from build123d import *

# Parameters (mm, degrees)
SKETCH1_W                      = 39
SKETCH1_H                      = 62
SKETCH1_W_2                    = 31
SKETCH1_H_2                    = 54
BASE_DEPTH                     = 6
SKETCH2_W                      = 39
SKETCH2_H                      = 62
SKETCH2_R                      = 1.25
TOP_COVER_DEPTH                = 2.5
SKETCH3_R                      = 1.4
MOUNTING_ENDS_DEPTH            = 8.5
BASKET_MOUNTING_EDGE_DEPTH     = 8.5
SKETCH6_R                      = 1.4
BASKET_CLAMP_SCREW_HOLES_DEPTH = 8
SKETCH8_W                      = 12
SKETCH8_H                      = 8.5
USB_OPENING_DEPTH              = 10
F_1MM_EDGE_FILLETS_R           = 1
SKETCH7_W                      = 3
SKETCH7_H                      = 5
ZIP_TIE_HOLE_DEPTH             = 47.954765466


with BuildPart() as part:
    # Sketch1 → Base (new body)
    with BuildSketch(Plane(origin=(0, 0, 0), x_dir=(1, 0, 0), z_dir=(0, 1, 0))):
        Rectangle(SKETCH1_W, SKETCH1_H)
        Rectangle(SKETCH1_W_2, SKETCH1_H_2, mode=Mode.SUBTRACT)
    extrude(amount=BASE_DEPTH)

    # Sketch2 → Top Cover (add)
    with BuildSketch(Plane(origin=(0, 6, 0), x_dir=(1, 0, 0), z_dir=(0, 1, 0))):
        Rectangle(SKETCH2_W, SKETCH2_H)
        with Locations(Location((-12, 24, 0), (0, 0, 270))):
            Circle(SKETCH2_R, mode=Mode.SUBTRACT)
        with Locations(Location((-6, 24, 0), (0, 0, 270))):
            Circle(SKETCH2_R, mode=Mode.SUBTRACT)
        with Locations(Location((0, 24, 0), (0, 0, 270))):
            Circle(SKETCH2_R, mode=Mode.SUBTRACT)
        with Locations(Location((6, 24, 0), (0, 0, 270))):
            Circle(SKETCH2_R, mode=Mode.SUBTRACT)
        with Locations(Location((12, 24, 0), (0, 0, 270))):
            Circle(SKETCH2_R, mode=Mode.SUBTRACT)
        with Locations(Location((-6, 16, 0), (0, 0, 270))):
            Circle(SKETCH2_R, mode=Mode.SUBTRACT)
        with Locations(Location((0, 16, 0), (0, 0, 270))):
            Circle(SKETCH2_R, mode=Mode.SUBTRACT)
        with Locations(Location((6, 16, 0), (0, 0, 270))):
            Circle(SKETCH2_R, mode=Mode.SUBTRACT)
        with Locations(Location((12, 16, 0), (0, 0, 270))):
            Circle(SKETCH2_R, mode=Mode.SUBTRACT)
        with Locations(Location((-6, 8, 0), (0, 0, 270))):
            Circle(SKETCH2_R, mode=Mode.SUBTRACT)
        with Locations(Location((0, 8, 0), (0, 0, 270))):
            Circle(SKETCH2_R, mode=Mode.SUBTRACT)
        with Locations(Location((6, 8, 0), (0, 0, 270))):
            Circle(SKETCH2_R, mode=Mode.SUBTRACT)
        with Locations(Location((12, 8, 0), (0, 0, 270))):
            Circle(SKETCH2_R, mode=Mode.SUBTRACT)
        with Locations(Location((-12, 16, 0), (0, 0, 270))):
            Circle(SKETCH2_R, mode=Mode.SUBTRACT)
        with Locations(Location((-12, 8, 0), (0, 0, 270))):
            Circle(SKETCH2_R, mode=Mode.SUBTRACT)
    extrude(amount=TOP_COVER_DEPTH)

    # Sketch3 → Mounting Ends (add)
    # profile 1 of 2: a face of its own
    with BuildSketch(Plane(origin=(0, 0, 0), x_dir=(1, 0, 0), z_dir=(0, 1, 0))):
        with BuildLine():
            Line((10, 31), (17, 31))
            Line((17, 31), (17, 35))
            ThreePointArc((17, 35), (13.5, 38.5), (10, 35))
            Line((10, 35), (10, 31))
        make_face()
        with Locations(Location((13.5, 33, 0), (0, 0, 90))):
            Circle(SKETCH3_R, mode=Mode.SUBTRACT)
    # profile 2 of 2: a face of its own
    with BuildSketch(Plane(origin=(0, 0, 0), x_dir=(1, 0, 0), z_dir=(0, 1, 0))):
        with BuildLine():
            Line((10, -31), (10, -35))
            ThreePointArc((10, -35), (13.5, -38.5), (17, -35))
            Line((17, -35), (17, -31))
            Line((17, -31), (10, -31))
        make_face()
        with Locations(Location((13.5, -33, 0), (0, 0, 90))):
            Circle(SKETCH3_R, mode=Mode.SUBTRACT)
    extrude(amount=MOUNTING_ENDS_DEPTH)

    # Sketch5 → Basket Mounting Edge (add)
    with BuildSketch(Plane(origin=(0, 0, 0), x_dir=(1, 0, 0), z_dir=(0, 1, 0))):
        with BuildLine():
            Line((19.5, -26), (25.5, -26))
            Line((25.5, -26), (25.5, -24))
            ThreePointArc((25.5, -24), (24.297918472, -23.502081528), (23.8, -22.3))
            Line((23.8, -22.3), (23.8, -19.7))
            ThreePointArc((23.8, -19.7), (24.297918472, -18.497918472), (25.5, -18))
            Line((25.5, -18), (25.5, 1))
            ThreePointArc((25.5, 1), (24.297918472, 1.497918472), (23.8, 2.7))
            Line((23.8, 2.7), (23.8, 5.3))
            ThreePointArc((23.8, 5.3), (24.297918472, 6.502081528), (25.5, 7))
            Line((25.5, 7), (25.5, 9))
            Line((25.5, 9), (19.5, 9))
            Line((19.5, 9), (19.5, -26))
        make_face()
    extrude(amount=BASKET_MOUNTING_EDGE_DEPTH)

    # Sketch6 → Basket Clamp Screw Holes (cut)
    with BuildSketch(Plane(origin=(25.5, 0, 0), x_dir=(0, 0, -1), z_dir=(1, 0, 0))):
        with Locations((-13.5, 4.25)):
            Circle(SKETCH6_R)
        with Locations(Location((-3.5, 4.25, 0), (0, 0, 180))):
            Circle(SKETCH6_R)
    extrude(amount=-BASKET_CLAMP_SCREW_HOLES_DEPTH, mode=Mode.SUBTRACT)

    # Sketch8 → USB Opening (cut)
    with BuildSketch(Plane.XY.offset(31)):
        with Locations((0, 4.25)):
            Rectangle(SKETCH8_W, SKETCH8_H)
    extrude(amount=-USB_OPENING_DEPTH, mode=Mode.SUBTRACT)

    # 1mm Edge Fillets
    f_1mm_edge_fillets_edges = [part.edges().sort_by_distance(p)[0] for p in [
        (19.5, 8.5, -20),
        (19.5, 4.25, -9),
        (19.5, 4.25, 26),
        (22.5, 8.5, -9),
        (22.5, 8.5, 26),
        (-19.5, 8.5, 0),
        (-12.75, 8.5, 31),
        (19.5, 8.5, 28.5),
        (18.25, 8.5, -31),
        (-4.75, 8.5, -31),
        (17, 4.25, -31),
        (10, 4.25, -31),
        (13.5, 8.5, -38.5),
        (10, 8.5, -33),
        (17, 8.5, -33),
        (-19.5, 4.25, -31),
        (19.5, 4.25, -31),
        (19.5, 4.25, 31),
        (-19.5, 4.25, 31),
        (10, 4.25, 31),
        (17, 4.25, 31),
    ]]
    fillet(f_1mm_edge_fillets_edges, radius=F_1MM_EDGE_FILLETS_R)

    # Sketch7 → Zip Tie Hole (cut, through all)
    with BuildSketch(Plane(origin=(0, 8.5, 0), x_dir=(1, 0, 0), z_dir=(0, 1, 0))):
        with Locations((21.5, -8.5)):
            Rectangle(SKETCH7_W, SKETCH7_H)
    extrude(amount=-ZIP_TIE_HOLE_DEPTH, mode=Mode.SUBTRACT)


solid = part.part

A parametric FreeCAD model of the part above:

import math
import FreeCAD as App
import Part
import Sketcher

V = App.Vector
Q = App.Units.Quantity


def edges_at(feature, points):
    """Names of the edges that pass closest to the given points."""
    edges = feature.Shape.Edges
    near = lambda p: min(range(len(edges)), key=lambda i: edges[i].distToShape(Part.Vertex(*p))[0])
    return sorted({f"Edge{near(p) + 1}" for p in points})


def add_polygon(sketch, points):
    """Adds a closed chain of lines whose ends are joined by coincident constraints."""
    first, n = sketch.GeometryCount, len(points)
    for a, b in zip(points, points[1:] + points[:1]):
        sketch.addGeometry(Part.LineSegment(App.Vector(*a, 0), App.Vector(*b, 0)), False)
    for i in range(n):
        sketch.addConstraint(Sketcher.Constraint("Coincident", first + i, 2, first + (i + 1) % n, 1))

doc = App.newDocument("Part")
body = doc.addObject("PartDesign::Body", "Body")

# Sketch on XZ plane
sketch1 = doc.addObject("Sketcher::SketchObject", "Sketch")
body.addObject(sketch1)
sketch1.AttachmentSupport = (doc.XZ_Plane, [""])
sketch1.MapMode = "FlatFace"
add_polygon(sketch1, [(-19.5, -31), (-19.5, 31), (19.5, 31), (19.5, -31)])  # lines 0-3
add_polygon(sketch1, [(15.5, 27), (-15.5, 27), (-15.5, -27), (15.5, -27)])  # lines 4-7
sketch1.addConstraint(Sketcher.Constraint("Vertical", 0))
sketch1.addConstraint(Sketcher.Constraint("Horizontal", 1))
sketch1.addConstraint(Sketcher.Constraint("Vertical", 2))
sketch1.addConstraint(Sketcher.Constraint("Horizontal", 3))
sketch1.addConstraint(Sketcher.Constraint("Horizontal", 4))
sketch1.addConstraint(Sketcher.Constraint("Vertical", 5))
sketch1.addConstraint(Sketcher.Constraint("Horizontal", 6))
sketch1.addConstraint(Sketcher.Constraint("Vertical", 7))
sketch1.addConstraint(Sketcher.Constraint("Symmetric", 0, 2, 2, 2, -1, 1))
sketch1.addConstraint(Sketcher.Constraint("Symmetric", 4, 2, 6, 2, -1, 1))
sketch1.addConstraint(Sketcher.Constraint("DistanceX", 1, 1, 1, 2, Q("39 mm")))
sketch1.addConstraint(Sketcher.Constraint("DistanceX", 4, 2, 4, 1, Q("31 mm")))
sketch1.addConstraint(Sketcher.Constraint("DistanceY", 0, 1, 0, 2, Q("62 mm")))
sketch1.addConstraint(Sketcher.Constraint("DistanceY", 5, 2, 5, 1, Q("54 mm")))
pad1 = doc.addObject("PartDesign::Pad", "Pad")
body.addObject(pad1)
pad1.Profile = sketch1
pad1.Length = 6
pad1.Reversed = True

# Sketch on XZ plane
sketch2 = doc.addObject("Sketcher::SketchObject", "Sketch001")
body.addObject(sketch2)
sketch2.AttachmentSupport = (doc.XZ_Plane, [""])
sketch2.MapMode = "FlatFace"
sketch2.AttachmentOffset = App.Placement(V(0, 0, -6), App.Rotation())
add_polygon(sketch2, [(-19.5, -31), (-19.5, 31), (19.5, 31), (19.5, -31)])  # lines 0-3
sketch2.addGeometry(Part.Circle(V(-12, -8, 0), V(0, 0, 1), 1.25), False)  # 4
sketch2.addGeometry(Part.Circle(V(-6, -8, 0), V(0, 0, 1), 1.25), False)  # 5
sketch2.addGeometry(Part.Circle(V(0, -8, 0), V(0, 0, 1), 1.25), False)  # 6
sketch2.addGeometry(Part.Circle(V(6, -8, 0), V(0, 0, 1), 1.25), False)  # 7
sketch2.addGeometry(Part.Circle(V(12, -8, 0), V(0, 0, 1), 1.25), False)  # 8
sketch2.addGeometry(Part.Circle(V(-12, -16, 0), V(0, 0, 1), 1.25), False)  # 9
sketch2.addGeometry(Part.Circle(V(-6, -16, 0), V(0, 0, 1), 1.25), False)  # 10
sketch2.addGeometry(Part.Circle(V(-12, -24, 0), V(0, 0, 1), 1.25), False)  # 11
sketch2.addGeometry(Part.Circle(V(-6, -24, 0), V(0, 0, 1), 1.25), False)  # 12
sketch2.addGeometry(Part.Circle(V(0, -16, 0), V(0, 0, 1), 1.25), False)  # 13
sketch2.addGeometry(Part.Circle(V(6, -16, 0), V(0, 0, 1), 1.25), False)  # 14
sketch2.addGeometry(Part.Circle(V(12, -16, 0), V(0, 0, 1), 1.25), False)  # 15
sketch2.addGeometry(Part.Circle(V(0, -24, 0), V(0, 0, 1), 1.25), False)  # 16
sketch2.addGeometry(Part.Circle(V(6, -24, 0), V(0, 0, 1), 1.25), False)  # 17
sketch2.addGeometry(Part.Circle(V(12, -24, 0), V(0, 0, 1), 1.25), False)  # 18
sketch2.addConstraint(Sketcher.Constraint("Vertical", 0))
sketch2.addConstraint(Sketcher.Constraint("Horizontal", 1))
sketch2.addConstraint(Sketcher.Constraint("Vertical", 2))
sketch2.addConstraint(Sketcher.Constraint("Horizontal", 3))
sketch2.addConstraint(Sketcher.Constraint("Equal", 4, 5))
sketch2.addConstraint(Sketcher.Constraint("Equal", 5, 6))
sketch2.addConstraint(Sketcher.Constraint("Equal", 6, 7))
sketch2.addConstraint(Sketcher.Constraint("Equal", 7, 8))
sketch2.addConstraint(Sketcher.Constraint("Equal", 8, 9))
sketch2.addConstraint(Sketcher.Constraint("Equal", 9, 10))
sketch2.addConstraint(Sketcher.Constraint("Equal", 10, 11))
sketch2.addConstraint(Sketcher.Constraint("Equal", 11, 12))
sketch2.addConstraint(Sketcher.Constraint("Equal", 12, 13))
sketch2.addConstraint(Sketcher.Constraint("Equal", 13, 14))
sketch2.addConstraint(Sketcher.Constraint("Equal", 14, 15))
sketch2.addConstraint(Sketcher.Constraint("Equal", 15, 16))
sketch2.addConstraint(Sketcher.Constraint("Equal", 16, 17))
sketch2.addConstraint(Sketcher.Constraint("Equal", 17, 18))
sketch2.addConstraint(Sketcher.Constraint("Symmetric", 0, 2, 2, 2, -1, 1))
sketch2.addConstraint(Sketcher.Constraint("Symmetric", 5, 3, 7, 3, -2))
sketch2.addConstraint(Sketcher.Constraint("Symmetric", 4, 3, 8, 3, -2))
sketch2.addConstraint(Sketcher.Constraint("Symmetric", 10, 3, 14, 3, -2))
sketch2.addConstraint(Sketcher.Constraint("Symmetric", 9, 3, 15, 3, -2))
sketch2.addConstraint(Sketcher.Constraint("Symmetric", 12, 3, 17, 3, -2))
sketch2.addConstraint(Sketcher.Constraint("Symmetric", 11, 3, 18, 3, -2))
sketch2.addConstraint(Sketcher.Constraint("PointOnObject", 6, 3, -2))
sketch2.addConstraint(Sketcher.Constraint("PointOnObject", 13, 3, -2))
sketch2.addConstraint(Sketcher.Constraint("PointOnObject", 16, 3, -2))
sketch2.addConstraint(Sketcher.Constraint("Horizontal", 4, 3, 5, 3))
sketch2.addConstraint(Sketcher.Constraint("Horizontal", 5, 3, 6, 3))
sketch2.addConstraint(Sketcher.Constraint("Horizontal", 9, 3, 10, 3))
sketch2.addConstraint(Sketcher.Constraint("Horizontal", 11, 3, 12, 3))
sketch2.addConstraint(Sketcher.Constraint("Horizontal", 10, 3, 13, 3))
sketch2.addConstraint(Sketcher.Constraint("Horizontal", 12, 3, 16, 3))
sketch2.addConstraint(Sketcher.Constraint("Vertical", 4, 3, 9, 3))
sketch2.addConstraint(Sketcher.Constraint("Vertical", 5, 3, 10, 3))
sketch2.addConstraint(Sketcher.Constraint("Vertical", 9, 3, 11, 3))
sketch2.addConstraint(Sketcher.Constraint("Vertical", 10, 3, 12, 3))
sketch2.addConstraint(Sketcher.Constraint("Diameter", 4, Q("2.5 mm")))
sketch2.addConstraint(Sketcher.Constraint("DistanceX", 1, 1, 1, 2, Q("39 mm")))
sketch2.addConstraint(Sketcher.Constraint("DistanceY", 0, 1, 0, 2, Q("62 mm")))
sketch2.addConstraint(Sketcher.Constraint("DistanceX", 4, 3, -1, 1, Q("12 mm")))
sketch2.addConstraint(Sketcher.Constraint("DistanceY", 4, 3, -1, 1, Q("8 mm")))
sketch2.addConstraint(Sketcher.Constraint("DistanceX", 5, 3, -1, 1, Q("6 mm")))
sketch2.addConstraint(Sketcher.Constraint("DistanceY", 9, 3, -1, 1, Q("16 mm")))
sketch2.addConstraint(Sketcher.Constraint("DistanceY", 11, 3, -1, 1, Q("24 mm")))
pad2 = doc.addObject("PartDesign::Pad", "Pad001")
body.addObject(pad2)
pad2.Profile = sketch2
pad2.Length = 2.5
pad2.Reversed = True

# Sketch on XZ plane
sketch3 = doc.addObject("Sketcher::SketchObject", "Sketch002")
body.addObject(sketch3)
sketch3.AttachmentSupport = (doc.XZ_Plane, [""])
sketch3.MapMode = "FlatFace"
sketch3.addGeometry(Part.LineSegment(V(10, -31, 0), V(17, -31, 0)), False)
sketch3.addGeometry(Part.LineSegment(V(17, -31, 0), V(17, -35, 0)), False)
sketch3.addGeometry(Part.ArcOfCircle(Part.Circle(V(13.5, -35, 0), V(0, 0, 1), 3.5), math.radians(180), math.radians(360)), False)
sketch3.addGeometry(Part.LineSegment(V(10, -35, 0), V(10, -31, 0)), False)
sketch3.addGeometry(Part.Circle(V(13.5, -33, 0), V(0, 0, 1), 1.4), False)
sketch3.addGeometry(Part.LineSegment(V(10, 31, 0), V(10, 35, 0)), False)
sketch3.addGeometry(Part.ArcOfCircle(Part.Circle(V(13.5, 35, 0), V(0, 0, 1), 3.5), math.radians(0), math.radians(180)), False)
sketch3.addGeometry(Part.LineSegment(V(17, 35, 0), V(17, 31, 0)), False)
sketch3.addGeometry(Part.LineSegment(V(17, 31, 0), V(10, 31, 0)), False)
sketch3.addGeometry(Part.Circle(V(13.5, 33, 0), V(0, 0, 1), 1.4), False)
sketch3.addConstraint(Sketcher.Constraint("Coincident", 0, 2, 1, 1))
sketch3.addConstraint(Sketcher.Constraint("Tangent", 1, 2, 2, 2))
sketch3.addConstraint(Sketcher.Constraint("Tangent", 2, 1, 3, 1))
sketch3.addConstraint(Sketcher.Constraint("Coincident", 3, 2, 0, 1))
sketch3.addConstraint(Sketcher.Constraint("Tangent", 5, 2, 6, 2))
sketch3.addConstraint(Sketcher.Constraint("Tangent", 6, 1, 7, 1))
sketch3.addConstraint(Sketcher.Constraint("Coincident", 7, 2, 8, 1))
sketch3.addConstraint(Sketcher.Constraint("Coincident", 8, 2, 5, 1))
sketch3.addConstraint(Sketcher.Constraint("Horizontal", 0))
sketch3.addConstraint(Sketcher.Constraint("Vertical", 1))
sketch3.addConstraint(Sketcher.Constraint("Vertical", 3))
sketch3.addConstraint(Sketcher.Constraint("Vertical", 5))
sketch3.addConstraint(Sketcher.Constraint("Vertical", 7))
sketch3.addConstraint(Sketcher.Constraint("Horizontal", 8))
sketch3.addConstraint(Sketcher.Constraint("Equal", 2, 6))
sketch3.addConstraint(Sketcher.Constraint("Equal", 4, 9))
sketch3.addConstraint(Sketcher.Constraint("Symmetric", 2, 3, 6, 3, -1))
sketch3.addConstraint(Sketcher.Constraint("Symmetric", 4, 3, 9, 3, -1))
sketch3.addConstraint(Sketcher.Constraint("Vertical", 2, 3, 4, 3))
sketch3.addConstraint(Sketcher.Constraint("Equal", 3, 5))
sketch3.addConstraint(Sketcher.Constraint("Diameter", 4, Q("2.8 mm")))
sketch3.addConstraint(Sketcher.Constraint("Radius", 2, Q("3.5 mm")))
sketch3.addConstraint(Sketcher.Constraint("DistanceY", 1, 2, 1, 1, Q("4 mm")))
sketch3.addConstraint(Sketcher.Constraint("DistanceY", 2, 3, -1, 1, Q("35 mm")))
sketch3.addConstraint(Sketcher.Constraint("DistanceY", 4, 3, -1, 1, Q("33 mm")))
sketch3.addConstraint(Sketcher.Constraint("DistanceX", -1, 1, 0, 2, Q("17 mm")))
pad3 = doc.addObject("PartDesign::Pad", "Pad002")
body.addObject(pad3)
pad3.Profile = sketch3
pad3.Length = 8.5
pad3.Reversed = True

# Sketch on XZ plane
sketch4 = doc.addObject("Sketcher::SketchObject", "Sketch003")
body.addObject(sketch4)
sketch4.AttachmentSupport = (doc.XZ_Plane, [""])
sketch4.MapMode = "FlatFace"
sketch4.addGeometry(Part.LineSegment(V(19.5, 26, 0), V(25.5, 26, 0)), False)
sketch4.addGeometry(Part.LineSegment(V(25.5, 26, 0), V(25.5, 24, 0)), False)
sketch4.addGeometry(Part.ArcOfCircle(Part.Circle(V(25.5, 22.3, 0), V(0, 0, 1), 1.7), math.radians(90), math.radians(180)), False)
sketch4.addGeometry(Part.LineSegment(V(23.8, 22.3, 0), V(23.8, 19.7, 0)), False)
sketch4.addGeometry(Part.ArcOfCircle(Part.Circle(V(25.5, 19.7, 0), V(0, 0, 1), 1.7), math.radians(180), math.radians(270)), False)
sketch4.addGeometry(Part.LineSegment(V(25.5, 18, 0), V(25.5, -1, 0)), False)
sketch4.addGeometry(Part.ArcOfCircle(Part.Circle(V(25.5, -2.7, 0), V(0, 0, 1), 1.7), math.radians(90), math.radians(180)), False)
sketch4.addGeometry(Part.LineSegment(V(23.8, -2.7, 0), V(23.8, -5.3, 0)), False)
sketch4.addGeometry(Part.ArcOfCircle(Part.Circle(V(25.5, -5.3, 0), V(0, 0, 1), 1.7), math.radians(180), math.radians(270)), False)
sketch4.addGeometry(Part.LineSegment(V(25.5, -7, 0), V(25.5, -9, 0)), False)
sketch4.addGeometry(Part.LineSegment(V(25.5, -9, 0), V(19.5, -9, 0)), False)
sketch4.addGeometry(Part.LineSegment(V(19.5, -9, 0), V(19.5, 26, 0)), False)
sketch4.addConstraint(Sketcher.Constraint("Coincident", 0, 2, 1, 1))
sketch4.addConstraint(Sketcher.Constraint("Coincident", 1, 2, 2, 1))
sketch4.addConstraint(Sketcher.Constraint("Tangent", 2, 2, 3, 1))
sketch4.addConstraint(Sketcher.Constraint("Tangent", 3, 2, 4, 1))
sketch4.addConstraint(Sketcher.Constraint("Coincident", 4, 2, 5, 1))
sketch4.addConstraint(Sketcher.Constraint("Coincident", 5, 2, 6, 1))
sketch4.addConstraint(Sketcher.Constraint("Tangent", 6, 2, 7, 1))
sketch4.addConstraint(Sketcher.Constraint("Tangent", 7, 2, 8, 1))
sketch4.addConstraint(Sketcher.Constraint("Coincident", 8, 2, 9, 1))
sketch4.addConstraint(Sketcher.Constraint("Coincident", 9, 2, 10, 1))
sketch4.addConstraint(Sketcher.Constraint("Coincident", 10, 2, 11, 1))
sketch4.addConstraint(Sketcher.Constraint("Coincident", 11, 2, 0, 1))
sketch4.addConstraint(Sketcher.Constraint("Horizontal", 0))
sketch4.addConstraint(Sketcher.Constraint("Vertical", 1))
sketch4.addConstraint(Sketcher.Constraint("Vertical", 3))
sketch4.addConstraint(Sketcher.Constraint("Vertical", 5))
sketch4.addConstraint(Sketcher.Constraint("Vertical", 7))
sketch4.addConstraint(Sketcher.Constraint("Vertical", 9))
sketch4.addConstraint(Sketcher.Constraint("Horizontal", 10))
sketch4.addConstraint(Sketcher.Constraint("Vertical", 11))
sketch4.addConstraint(Sketcher.Constraint("Equal", 2, 4))
sketch4.addConstraint(Sketcher.Constraint("Equal", 4, 6))
sketch4.addConstraint(Sketcher.Constraint("Equal", 6, 8))
sketch4.addConstraint(Sketcher.Constraint("Vertical", 4, 3, 6, 3))
sketch4.addConstraint(Sketcher.Constraint("Vertical", 8, 3, 0, 2))
sketch4.addConstraint(Sketcher.Constraint("Vertical", 1, 2, 4, 2))
sketch4.addConstraint(Sketcher.Constraint("Vertical", 5, 2, 8, 2))
sketch4.addConstraint(Sketcher.Constraint("Equal", 3, 7))
sketch4.addConstraint(Sketcher.Constraint("Equal", 1, 9))
sketch4.addConstraint(Sketcher.Constraint("Radius", 2, Q("1.7 mm")))
sketch4.addConstraint(Sketcher.Constraint("DistanceX", 0, 1, 0, 2, Q("6 mm")))
sketch4.addConstraint(Sketcher.Constraint("DistanceY", 1, 2, 1, 1, Q("2 mm")))
sketch4.addConstraint(Sketcher.Constraint("DistanceY", 5, 2, 5, 1, Q("19 mm")))
sketch4.addConstraint(Sketcher.Constraint("DistanceY", 11, 1, 11, 2, Q("35 mm")))
sketch4.addConstraint(Sketcher.Constraint("DistanceY", -1, 1, 0, 2, Q("26 mm")))
sketch4.addConstraint(Sketcher.Constraint("DistanceX", -1, 1, 2, 3, Q("25.5 mm")))
pad4 = doc.addObject("PartDesign::Pad", "Pad003")
body.addObject(pad4)
pad4.Profile = sketch4
pad4.Length = 8.5
pad4.Reversed = True

# Sketch on YZ plane
sketch5 = doc.addObject("Sketcher::SketchObject", "Sketch004")
body.addObject(sketch5)
sketch5.AttachmentSupport = (doc.YZ_Plane, [""])
sketch5.MapMode = "FlatFace"
sketch5.AttachmentOffset = App.Placement(V(0, 0, 25.5), App.Rotation())
sketch5.addGeometry(Part.Circle(V(4.25, 13.5, 0), V(0, 0, 1), 1.4), False)
sketch5.addGeometry(Part.Circle(V(4.25, 3.5, 0), V(0, 0, 1), 1.4), False)
sketch5.addConstraint(Sketcher.Constraint("Equal", 0, 1))
sketch5.addConstraint(Sketcher.Constraint("Vertical", 0, 3, 1, 3))
sketch5.addConstraint(Sketcher.Constraint("Diameter", 0, Q("2.8 mm")))
sketch5.addConstraint(Sketcher.Constraint("DistanceY", 1, 3, 0, 3, Q("10 mm")))
sketch5.addConstraint(Sketcher.Constraint("DistanceY", -1, 1, 0, 3, Q("13.5 mm")))
sketch5.addConstraint(Sketcher.Constraint("DistanceX", -1, 1, 0, 3, Q("4.25 mm")))
pocket1 = doc.addObject("PartDesign::Pocket", "Pocket")
body.addObject(pocket1)
pocket1.Profile = sketch5
pocket1.Length = 8

# Sketch on XY plane
sketch6 = doc.addObject("Sketcher::SketchObject", "Sketch005")
body.addObject(sketch6)
sketch6.AttachmentSupport = (doc.XY_Plane, [""])
sketch6.MapMode = "FlatFace"
sketch6.AttachmentOffset = App.Placement(V(0, 0, 31), App.Rotation())
add_polygon(sketch6, [(-6, 8.5), (-6, 0), (6, 0), (6, 8.5)])  # lines 0-3
sketch6.addConstraint(Sketcher.Constraint("Vertical", 0))
sketch6.addConstraint(Sketcher.Constraint("Horizontal", 1))
sketch6.addConstraint(Sketcher.Constraint("Vertical", 2))
sketch6.addConstraint(Sketcher.Constraint("Horizontal", 3))
sketch6.addConstraint(Sketcher.Constraint("Symmetric", 0, 2, 1, 2, -1, 1))
sketch6.addConstraint(Sketcher.Constraint("DistanceX", 1, 1, 1, 2, Q("12 mm")))
sketch6.addConstraint(Sketcher.Constraint("DistanceY", 0, 2, 0, 1, Q("8.5 mm")))
pocket2 = doc.addObject("PartDesign::Pocket", "Pocket001")
body.addObject(pocket2)
pocket2.Profile = sketch6
pocket2.Length = 10
doc.recompute()

fillet = doc.addObject("PartDesign::Fillet", "Fillet")
body.addObject(fillet)
fillet.Base = (pocket2, edges_at(pocket2, [
    (19.5, 8.5, -20),
    (19.5, 4.25, -9),
    (19.5, 4.25, 26),
    (22.5, 8.5, -9),
    (22.5, 8.5, 26),
    (-19.5, 8.5, 0),
    (-12.75, 8.5, 31),
    (19.5, 8.5, 28.5),
    (18.25, 8.5, -31),
    (-4.75, 8.5, -31),
    (17, 4.25, -31),
    (10, 4.25, -31),
    (13.5, 8.5, -38.5),
    (10, 8.5, -33),
    (17, 8.5, -33),
    (-19.5, 4.25, -31),
    (19.5, 4.25, -31),
    (19.5, 4.25, 31),
    (-19.5, 4.25, 31),
    (10, 4.25, 31),
    (17, 4.25, 31),
]))
fillet.Radius = 1

# Sketch on XZ plane
sketch7 = doc.addObject("Sketcher::SketchObject", "Sketch006")
body.addObject(sketch7)
sketch7.AttachmentSupport = (doc.XZ_Plane, [""])
sketch7.MapMode = "FlatFace"
sketch7.AttachmentOffset = App.Placement(V(0, 0, -8.5), App.Rotation())
add_polygon(sketch7, [(20, 6), (20, 11), (23, 11), (23, 6)])  # lines 0-3
sketch7.addConstraint(Sketcher.Constraint("Vertical", 0))
sketch7.addConstraint(Sketcher.Constraint("Horizontal", 1))
sketch7.addConstraint(Sketcher.Constraint("Vertical", 2))
sketch7.addConstraint(Sketcher.Constraint("Horizontal", 3))
sketch7.addConstraint(Sketcher.Constraint("DistanceX", 1, 1, 1, 2, Q("3 mm")))
sketch7.addConstraint(Sketcher.Constraint("DistanceY", 0, 1, 0, 2, Q("5 mm")))
sketch7.addConstraint(Sketcher.Constraint("DistanceX", -1, 1, 0, 2, Q("20 mm")))
sketch7.addConstraint(Sketcher.Constraint("DistanceY", -1, 1, 0, 2, Q("11 mm")))
pocket3 = doc.addObject("PartDesign::Pocket", "Pocket002")
body.addObject(pocket3)
pocket3.Profile = sketch7
pocket3.Type = "ThroughAll"
pocket3.Reversed = True

doc.recompute()
